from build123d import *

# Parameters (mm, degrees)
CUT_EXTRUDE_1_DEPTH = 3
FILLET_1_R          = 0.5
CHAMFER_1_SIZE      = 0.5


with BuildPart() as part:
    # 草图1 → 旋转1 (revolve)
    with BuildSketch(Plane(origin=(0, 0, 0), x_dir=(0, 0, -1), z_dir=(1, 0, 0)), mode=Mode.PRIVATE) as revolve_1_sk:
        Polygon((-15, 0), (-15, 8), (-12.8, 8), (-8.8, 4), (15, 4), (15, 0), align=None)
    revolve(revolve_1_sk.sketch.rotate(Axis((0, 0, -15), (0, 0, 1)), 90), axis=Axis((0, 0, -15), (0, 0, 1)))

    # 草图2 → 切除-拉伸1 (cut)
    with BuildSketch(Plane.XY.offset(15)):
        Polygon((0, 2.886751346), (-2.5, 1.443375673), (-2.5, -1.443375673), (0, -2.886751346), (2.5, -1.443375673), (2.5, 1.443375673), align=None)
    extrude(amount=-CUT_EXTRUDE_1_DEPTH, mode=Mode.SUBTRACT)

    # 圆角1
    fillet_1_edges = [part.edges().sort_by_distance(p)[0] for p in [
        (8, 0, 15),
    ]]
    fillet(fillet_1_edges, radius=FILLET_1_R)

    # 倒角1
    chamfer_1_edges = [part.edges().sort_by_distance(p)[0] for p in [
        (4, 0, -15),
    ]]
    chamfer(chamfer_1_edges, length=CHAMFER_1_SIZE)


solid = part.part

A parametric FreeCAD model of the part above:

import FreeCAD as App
import Part
import Sketcher
from FreeCAD import Vector
Q = App.Units.Quantity


def edges_at(feature, points):
    """Names of the edges that pass closest to the given points."""
    edges = feature.Shape.Edges
    near = lambda p: min(range(len(edges)), key=lambda i: edges[i].distToShape(Part.Vertex(*p))[0])
    return sorted({f"Edge{near(p) + 1}" for p in points})

doc = App.newDocument("Part")
body = doc.addObject("PartDesign::Body", "Body")

sketch1 = body.newObject("Sketcher::SketchObject", "Sketch")
sketch1.AttachmentSupport = (doc.getObject("YZ_Plane"), [""])
sketch1.MapMode = "FlatFace"
sketch1.addGeometry([
    Part.LineSegment(Vector(8, 15, 0), Vector(0, 15, 0)),
    Part.LineSegment(Vector(0, 15, 0), Vector(0, -15, 0)),
    Part.LineSegment(Vector(0, -15, 0), Vector(4, -15, 0)),
    Part.LineSegment(Vector(4, -15, 0), Vector(4, 8.8, 0)),
    Part.LineSegment(Vector(4, 8.8, 0), Vector(8, 12.8, 0)),
    Part.LineSegment(Vector(8, 12.8, 0), Vector(8, 15, 0)),
], False)
sketch1.addConstraint([
    Sketcher.Constraint("Coincident", 0, 2, 1, 1),
    Sketcher.Constraint("Coincident", 1, 2, 2, 1),
    Sketcher.Constraint("Coincident", 2, 2, 3, 1),
    Sketcher.Constraint("Coincident", 3, 2, 4, 1),
    Sketcher.Constraint("Coincident", 4, 2, 5, 1),
    Sketcher.Constraint("Coincident", 5, 2, 0, 1),
    Sketcher.Constraint("Horizontal", 0),
    Sketcher.Constraint("Vertical", 1),
    Sketcher.Constraint("Horizontal", 2),
    Sketcher.Constraint("Vertical", 3),
    Sketcher.Constraint("Vertical", 5),
    Sketcher.Constraint("Symmetric", 0, 2, 1, 2, -1, 1),
    Sketcher.Constraint("DistanceX", 0, 2, 0, 1, Q("8 mm")),
    Sketcher.Constraint("DistanceX", 2, 1, 2, 2, Q("4 mm")),
    Sketcher.Constraint("DistanceY", 1, 2, 1, 1, Q("30 mm")),
    Sketcher.Constraint("Angle", 4, Q("45 deg")),
    Sketcher.Constraint("DistanceY", 3, 1, 3, 2, Q("23.8 mm")),
])
revolution = body.newObject("PartDesign::Revolution", "Revolution")
revolution.Profile = sketch1
revolution.ReferenceAxis = (sketch1, ["V_Axis"])
revolution.Angle = 360

sketch2 = body.newObject("Sketcher::SketchObject", "Sketch001")
sketch2.AttachmentSupport = (doc.getObject("XY_Plane"), [""])
sketch2.MapMode = "FlatFace"
sketch2.AttachmentOffset = App.Placement(Vector(0, 0, 15), App.Rotation())
sketch2.addGeometry([
    Part.LineSegment(Vector(0, 2.886751, 0), Vector(-2.5, 1.443376, 0)),
    Part.LineSegment(Vector(-2.5, 1.443376, 0), Vector(-2.5, -1.443376, 0)),
    Part.LineSegment(Vector(-2.5, -1.443376, 0), Vector(0, -2.886751, 0)),
    Part.LineSegment(Vector(0, -2.886751, 0), Vector(2.5, -1.443376, 0)),
    Part.LineSegment(Vector(2.5, -1.443376, 0), Vector(2.5, 1.443376, 0)),
    Part.LineSegment(Vector(2.5, 1.443376, 0), Vector(0, 2.886751, 0)),
], False)
sketch2.addConstraint([
    Sketcher.Constraint("Coincident", 0, 2, 1, 1),
    Sketcher.Constraint("Coincident", 1, 2, 2, 1),
    Sketcher.Constraint("Coincident", 2, 2, 3, 1),
    Sketcher.Constraint("Coincident", 3, 2, 4, 1),
    Sketcher.Constraint("Coincident", 4, 2, 5, 1),
    Sketcher.Constraint("Coincident", 5, 2, 0, 1),
    Sketcher.Constraint("Vertical", 1),
    Sketcher.Constraint("Vertical", 4),
    Sketcher.Constraint("Symmetric", 0, 2, 3, 2, -1, 1),
    Sketcher.Constraint("Symmetric", 2, 2, 5, 2, -1, 1),
    Sketcher.Constraint("PointOnObject", 2, 2, -2),
    Sketcher.Constraint("Parallel", 2, 5),
    Sketcher.Constraint("Horizontal", 1, 2, 3, 2),
    Sketcher.Constraint("Angle", 0, Q("-150 deg")),
    Sketcher.Constraint("DistanceX", 1, 2, 3, 2, Q("5 mm")),
    Sketcher.Constraint("DistanceY", 1, 2, 1, 1, Q("2.886751 mm")),
])
pocket1 = body.newObject("PartDesign::Pocket", "Pocket")
pocket1.Profile = sketch2
pocket1.Length = 3
doc.recompute()

fillet = body.newObject("PartDesign::Fillet", "Fillet")
fillet.Base = (pocket1, edges_at(pocket1, [(8, 0, 15)]))
fillet.Radius = 0.5
doc.recompute()

chamfer = body.newObject("PartDesign::Chamfer", "Chamfer")
chamfer.Base = (fillet, edges_at(fillet, [(4, 0, -15)]))
chamfer.Size = 0.5

doc.recompute()
